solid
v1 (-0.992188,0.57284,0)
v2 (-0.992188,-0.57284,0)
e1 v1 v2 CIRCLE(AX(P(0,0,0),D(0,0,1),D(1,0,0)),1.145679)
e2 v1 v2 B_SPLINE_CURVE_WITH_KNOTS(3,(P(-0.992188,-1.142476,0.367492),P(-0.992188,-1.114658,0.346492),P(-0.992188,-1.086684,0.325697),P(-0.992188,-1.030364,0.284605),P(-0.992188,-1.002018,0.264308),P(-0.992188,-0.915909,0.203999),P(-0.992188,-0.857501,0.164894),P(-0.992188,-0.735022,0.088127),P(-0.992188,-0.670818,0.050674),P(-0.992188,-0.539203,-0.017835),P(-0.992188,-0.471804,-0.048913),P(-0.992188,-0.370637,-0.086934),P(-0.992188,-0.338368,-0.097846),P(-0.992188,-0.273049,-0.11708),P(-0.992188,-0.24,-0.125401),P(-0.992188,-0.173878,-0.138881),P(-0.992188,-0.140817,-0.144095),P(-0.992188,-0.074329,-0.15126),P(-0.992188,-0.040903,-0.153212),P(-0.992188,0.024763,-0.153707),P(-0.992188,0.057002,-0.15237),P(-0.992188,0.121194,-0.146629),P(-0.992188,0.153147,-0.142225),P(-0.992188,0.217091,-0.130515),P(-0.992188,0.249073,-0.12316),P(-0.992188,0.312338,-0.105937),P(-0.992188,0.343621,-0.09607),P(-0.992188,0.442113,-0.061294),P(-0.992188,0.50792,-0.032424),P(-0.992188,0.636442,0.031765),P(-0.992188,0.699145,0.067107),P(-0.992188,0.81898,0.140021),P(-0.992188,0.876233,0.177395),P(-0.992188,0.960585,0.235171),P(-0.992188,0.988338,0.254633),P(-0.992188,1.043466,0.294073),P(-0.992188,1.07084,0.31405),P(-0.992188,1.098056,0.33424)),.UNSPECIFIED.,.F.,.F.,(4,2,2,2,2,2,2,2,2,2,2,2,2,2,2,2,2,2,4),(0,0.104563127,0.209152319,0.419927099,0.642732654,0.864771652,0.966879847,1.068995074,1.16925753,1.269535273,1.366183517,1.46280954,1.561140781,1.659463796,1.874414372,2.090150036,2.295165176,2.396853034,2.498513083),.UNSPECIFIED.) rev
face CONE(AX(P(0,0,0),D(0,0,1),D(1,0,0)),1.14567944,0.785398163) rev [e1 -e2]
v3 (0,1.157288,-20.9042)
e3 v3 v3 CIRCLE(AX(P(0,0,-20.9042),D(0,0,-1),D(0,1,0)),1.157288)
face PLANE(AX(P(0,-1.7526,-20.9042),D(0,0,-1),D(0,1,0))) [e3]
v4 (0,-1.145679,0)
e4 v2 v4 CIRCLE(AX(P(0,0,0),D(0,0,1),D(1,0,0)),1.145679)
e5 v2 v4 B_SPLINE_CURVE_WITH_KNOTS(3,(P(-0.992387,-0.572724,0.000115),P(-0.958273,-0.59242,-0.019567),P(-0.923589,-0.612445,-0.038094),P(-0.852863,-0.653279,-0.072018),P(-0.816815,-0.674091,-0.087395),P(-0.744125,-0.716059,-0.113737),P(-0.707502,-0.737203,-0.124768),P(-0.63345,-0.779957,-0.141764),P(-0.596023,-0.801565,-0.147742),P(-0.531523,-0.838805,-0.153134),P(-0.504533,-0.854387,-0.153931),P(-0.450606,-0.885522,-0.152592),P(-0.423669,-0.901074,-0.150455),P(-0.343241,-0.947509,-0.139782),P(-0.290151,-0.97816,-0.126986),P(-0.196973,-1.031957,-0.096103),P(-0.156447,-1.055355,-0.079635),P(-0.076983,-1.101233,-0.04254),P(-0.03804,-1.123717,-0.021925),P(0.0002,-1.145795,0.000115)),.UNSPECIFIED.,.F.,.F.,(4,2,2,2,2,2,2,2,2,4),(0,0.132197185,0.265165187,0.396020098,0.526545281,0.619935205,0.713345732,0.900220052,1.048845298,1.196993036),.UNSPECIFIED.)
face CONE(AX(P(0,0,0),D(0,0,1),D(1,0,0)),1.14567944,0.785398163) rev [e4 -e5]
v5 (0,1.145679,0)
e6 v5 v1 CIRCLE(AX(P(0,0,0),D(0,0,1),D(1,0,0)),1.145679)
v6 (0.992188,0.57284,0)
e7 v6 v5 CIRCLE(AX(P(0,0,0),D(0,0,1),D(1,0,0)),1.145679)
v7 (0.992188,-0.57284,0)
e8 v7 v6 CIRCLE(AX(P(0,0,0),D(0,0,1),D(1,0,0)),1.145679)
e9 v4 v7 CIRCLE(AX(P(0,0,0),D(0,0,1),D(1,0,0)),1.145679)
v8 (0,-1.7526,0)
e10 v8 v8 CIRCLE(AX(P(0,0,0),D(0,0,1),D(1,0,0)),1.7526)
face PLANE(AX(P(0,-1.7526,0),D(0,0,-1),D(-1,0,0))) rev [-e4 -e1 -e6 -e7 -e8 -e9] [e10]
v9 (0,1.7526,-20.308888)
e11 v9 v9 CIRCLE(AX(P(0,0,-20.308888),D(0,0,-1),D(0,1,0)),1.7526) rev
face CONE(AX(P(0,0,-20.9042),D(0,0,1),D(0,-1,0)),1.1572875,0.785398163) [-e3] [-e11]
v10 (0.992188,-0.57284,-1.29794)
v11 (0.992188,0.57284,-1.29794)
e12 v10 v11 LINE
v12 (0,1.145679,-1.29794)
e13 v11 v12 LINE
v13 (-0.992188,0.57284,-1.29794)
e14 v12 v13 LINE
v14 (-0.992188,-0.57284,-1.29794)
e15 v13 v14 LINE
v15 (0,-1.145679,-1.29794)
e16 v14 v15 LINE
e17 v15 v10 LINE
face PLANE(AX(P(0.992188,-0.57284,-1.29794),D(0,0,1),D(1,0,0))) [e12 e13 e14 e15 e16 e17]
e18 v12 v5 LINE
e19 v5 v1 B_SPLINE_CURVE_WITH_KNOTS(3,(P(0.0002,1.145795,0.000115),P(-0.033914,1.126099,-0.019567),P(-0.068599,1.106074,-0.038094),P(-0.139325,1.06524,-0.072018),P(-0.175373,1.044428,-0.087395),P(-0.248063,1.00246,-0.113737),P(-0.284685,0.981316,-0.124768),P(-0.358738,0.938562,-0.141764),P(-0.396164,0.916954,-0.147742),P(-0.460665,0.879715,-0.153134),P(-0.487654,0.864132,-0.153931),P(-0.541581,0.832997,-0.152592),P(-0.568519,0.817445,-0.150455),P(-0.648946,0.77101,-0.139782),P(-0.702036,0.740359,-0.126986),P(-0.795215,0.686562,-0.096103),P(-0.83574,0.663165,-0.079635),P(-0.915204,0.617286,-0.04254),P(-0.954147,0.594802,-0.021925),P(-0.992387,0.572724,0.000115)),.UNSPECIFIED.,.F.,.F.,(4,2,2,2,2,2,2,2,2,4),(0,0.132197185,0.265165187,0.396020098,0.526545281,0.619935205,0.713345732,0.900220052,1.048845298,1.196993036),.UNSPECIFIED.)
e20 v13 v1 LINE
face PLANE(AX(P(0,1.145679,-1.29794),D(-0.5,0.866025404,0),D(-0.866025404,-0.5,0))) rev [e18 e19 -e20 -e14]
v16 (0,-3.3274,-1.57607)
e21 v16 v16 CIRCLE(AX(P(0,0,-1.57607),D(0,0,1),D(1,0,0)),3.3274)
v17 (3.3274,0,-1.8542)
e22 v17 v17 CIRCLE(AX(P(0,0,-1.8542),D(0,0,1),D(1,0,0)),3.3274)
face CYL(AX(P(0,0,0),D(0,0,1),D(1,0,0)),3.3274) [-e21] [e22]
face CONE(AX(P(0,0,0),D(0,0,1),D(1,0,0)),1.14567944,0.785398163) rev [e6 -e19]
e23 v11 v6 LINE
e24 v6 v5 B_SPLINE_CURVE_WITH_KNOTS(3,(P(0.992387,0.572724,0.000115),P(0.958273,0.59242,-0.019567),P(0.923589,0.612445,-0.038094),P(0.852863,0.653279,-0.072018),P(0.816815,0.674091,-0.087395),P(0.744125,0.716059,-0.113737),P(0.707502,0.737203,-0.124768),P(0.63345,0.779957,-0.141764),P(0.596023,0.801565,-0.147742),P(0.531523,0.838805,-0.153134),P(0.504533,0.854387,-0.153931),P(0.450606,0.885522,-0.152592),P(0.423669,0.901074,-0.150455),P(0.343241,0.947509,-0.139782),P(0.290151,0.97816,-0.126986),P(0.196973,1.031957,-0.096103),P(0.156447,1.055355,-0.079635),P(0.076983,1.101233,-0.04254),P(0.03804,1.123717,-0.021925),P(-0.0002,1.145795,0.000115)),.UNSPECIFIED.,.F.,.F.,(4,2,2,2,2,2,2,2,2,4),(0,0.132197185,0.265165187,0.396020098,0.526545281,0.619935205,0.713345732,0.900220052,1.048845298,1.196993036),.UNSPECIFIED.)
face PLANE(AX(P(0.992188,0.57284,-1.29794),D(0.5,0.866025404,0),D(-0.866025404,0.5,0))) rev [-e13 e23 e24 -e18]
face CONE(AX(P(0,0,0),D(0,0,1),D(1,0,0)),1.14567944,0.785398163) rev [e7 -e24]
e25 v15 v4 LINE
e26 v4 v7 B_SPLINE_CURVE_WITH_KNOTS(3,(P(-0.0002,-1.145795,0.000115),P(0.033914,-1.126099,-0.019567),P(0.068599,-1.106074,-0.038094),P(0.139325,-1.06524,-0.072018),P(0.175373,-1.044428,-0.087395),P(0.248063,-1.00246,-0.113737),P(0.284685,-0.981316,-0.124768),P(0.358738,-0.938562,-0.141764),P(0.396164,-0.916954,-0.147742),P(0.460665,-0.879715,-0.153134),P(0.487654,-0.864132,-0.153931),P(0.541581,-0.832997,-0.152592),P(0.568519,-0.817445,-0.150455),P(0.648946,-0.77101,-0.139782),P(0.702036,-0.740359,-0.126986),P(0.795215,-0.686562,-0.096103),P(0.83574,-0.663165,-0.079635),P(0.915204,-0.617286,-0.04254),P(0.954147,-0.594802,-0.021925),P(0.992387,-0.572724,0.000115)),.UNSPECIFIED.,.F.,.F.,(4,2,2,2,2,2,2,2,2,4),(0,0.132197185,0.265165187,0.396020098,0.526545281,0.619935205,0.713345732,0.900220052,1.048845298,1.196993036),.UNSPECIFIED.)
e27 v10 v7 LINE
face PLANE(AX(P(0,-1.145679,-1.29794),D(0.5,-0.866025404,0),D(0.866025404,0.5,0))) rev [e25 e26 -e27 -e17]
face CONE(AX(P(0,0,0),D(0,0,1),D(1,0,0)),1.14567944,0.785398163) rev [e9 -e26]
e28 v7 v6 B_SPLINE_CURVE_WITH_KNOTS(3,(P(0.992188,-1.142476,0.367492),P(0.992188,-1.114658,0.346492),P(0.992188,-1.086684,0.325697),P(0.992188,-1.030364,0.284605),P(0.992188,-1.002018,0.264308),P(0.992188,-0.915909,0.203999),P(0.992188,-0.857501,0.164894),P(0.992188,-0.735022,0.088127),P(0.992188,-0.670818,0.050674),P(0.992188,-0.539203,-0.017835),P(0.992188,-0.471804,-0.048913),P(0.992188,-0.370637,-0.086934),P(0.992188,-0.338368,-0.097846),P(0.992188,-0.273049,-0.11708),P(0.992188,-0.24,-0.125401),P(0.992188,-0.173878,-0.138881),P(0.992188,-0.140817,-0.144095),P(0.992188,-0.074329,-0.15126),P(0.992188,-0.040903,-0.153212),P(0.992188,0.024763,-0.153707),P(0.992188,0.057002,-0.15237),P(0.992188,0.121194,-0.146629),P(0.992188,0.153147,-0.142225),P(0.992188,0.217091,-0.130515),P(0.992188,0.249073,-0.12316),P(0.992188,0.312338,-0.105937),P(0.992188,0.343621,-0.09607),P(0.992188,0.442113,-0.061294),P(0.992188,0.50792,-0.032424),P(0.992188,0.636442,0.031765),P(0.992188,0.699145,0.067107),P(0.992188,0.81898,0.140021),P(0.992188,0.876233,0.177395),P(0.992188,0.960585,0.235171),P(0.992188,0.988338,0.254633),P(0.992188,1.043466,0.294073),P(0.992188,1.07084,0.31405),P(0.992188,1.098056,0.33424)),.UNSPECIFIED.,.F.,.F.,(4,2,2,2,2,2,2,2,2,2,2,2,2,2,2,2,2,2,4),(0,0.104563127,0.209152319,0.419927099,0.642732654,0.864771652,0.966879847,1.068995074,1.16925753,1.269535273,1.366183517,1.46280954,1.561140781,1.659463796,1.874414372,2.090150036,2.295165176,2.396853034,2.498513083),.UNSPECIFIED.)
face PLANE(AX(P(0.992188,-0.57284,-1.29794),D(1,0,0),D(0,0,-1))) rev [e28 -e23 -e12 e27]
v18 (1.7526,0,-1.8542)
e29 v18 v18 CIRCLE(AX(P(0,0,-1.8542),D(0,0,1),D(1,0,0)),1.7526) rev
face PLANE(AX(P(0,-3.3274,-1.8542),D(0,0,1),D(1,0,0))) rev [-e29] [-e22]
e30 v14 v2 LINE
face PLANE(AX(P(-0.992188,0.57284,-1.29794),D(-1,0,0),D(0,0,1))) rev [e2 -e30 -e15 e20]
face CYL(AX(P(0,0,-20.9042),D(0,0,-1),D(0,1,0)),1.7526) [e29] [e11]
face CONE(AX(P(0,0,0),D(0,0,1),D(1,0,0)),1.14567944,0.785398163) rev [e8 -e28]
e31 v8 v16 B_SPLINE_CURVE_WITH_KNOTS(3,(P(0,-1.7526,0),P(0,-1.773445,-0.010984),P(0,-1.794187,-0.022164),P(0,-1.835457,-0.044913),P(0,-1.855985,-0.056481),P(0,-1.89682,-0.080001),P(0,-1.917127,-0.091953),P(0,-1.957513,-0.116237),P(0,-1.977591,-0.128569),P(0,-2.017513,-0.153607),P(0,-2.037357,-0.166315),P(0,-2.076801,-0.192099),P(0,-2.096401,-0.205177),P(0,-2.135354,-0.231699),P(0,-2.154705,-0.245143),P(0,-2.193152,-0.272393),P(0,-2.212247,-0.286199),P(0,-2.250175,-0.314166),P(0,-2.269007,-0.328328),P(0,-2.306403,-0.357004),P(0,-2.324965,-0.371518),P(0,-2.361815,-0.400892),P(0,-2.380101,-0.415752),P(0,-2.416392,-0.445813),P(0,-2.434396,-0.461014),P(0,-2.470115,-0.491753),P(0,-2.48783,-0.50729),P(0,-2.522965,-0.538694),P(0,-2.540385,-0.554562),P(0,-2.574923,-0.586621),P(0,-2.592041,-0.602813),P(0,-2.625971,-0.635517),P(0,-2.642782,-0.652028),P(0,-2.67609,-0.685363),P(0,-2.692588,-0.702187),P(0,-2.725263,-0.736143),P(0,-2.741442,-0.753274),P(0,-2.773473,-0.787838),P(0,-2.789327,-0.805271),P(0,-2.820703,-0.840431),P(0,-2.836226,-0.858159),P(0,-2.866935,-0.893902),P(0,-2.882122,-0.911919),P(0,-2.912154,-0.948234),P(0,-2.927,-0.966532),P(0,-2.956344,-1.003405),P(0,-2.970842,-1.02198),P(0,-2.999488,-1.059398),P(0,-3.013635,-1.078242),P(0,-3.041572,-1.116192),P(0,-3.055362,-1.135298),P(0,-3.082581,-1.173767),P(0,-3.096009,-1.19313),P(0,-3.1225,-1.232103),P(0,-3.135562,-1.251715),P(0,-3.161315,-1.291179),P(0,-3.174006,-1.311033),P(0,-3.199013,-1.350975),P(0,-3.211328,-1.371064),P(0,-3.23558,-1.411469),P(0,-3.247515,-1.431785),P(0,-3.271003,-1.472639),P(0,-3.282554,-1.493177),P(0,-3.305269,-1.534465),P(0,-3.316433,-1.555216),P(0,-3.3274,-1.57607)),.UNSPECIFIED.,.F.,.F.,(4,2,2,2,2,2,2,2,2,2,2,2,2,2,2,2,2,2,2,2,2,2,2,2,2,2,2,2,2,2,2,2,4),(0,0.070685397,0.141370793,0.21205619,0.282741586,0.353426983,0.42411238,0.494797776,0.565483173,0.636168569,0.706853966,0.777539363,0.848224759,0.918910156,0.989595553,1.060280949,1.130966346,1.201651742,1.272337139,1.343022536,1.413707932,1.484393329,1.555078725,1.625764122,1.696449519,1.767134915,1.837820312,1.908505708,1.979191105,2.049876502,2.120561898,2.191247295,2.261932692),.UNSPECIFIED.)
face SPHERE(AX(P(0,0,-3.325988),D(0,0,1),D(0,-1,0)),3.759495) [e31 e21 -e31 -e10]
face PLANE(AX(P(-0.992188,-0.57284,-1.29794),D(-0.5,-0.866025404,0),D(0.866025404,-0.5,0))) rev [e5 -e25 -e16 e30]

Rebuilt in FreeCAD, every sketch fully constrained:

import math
import FreeCAD as App
import Part
import Sketcher
Q = App.Units.Quantity


def edges_at(feature, points):
    """Names of the edges that pass closest to the given points."""
    edges = feature.Shape.Edges
    near = lambda p: min(range(len(edges)), key=lambda i: edges[i].distToShape(Part.Vertex(*p))[0])
    return sorted({f"Edge{near(p) + 1}" for p in points})


def add_polygon(sketch, points):
    """Adds a closed chain of lines whose ends are joined by coincident constraints."""
    first, n = sketch.GeometryCount, len(points)
    for a, b in zip(points, points[1:] + points[:1]):
        sketch.addGeometry(Part.LineSegment(App.Vector(*a, 0), App.Vector(*b, 0)), False)
    for i in range(n):
        sketch.addConstraint(Sketcher.Constraint("Coincident", first + i, 2, first + (i + 1) % n, 1))

doc = App.newDocument("Part")
body = doc.addObject("PartDesign::Body", "Body")

# Sketch on YZ plane
sketch1 = body.newObject("Sketcher::SketchObject", "Sketch")
sketch1.AttachmentSupport = (doc.getObject("YZ_Plane"), [""])
sketch1.MapMode = "FlatFace"
add_polygon(sketch1, [(1.7526, -1.8542), (0, -1.8542), (0, -20.9042), (1.7526, -20.9042)])  # lines 0-3
sketch1.addConstraint(Sketcher.Constraint("Horizontal", 0))
sketch1.addConstraint(Sketcher.Constraint("Vertical", 1))
sketch1.addConstraint(Sketcher.Constraint("Horizontal", 2))
sketch1.addConstraint(Sketcher.Constraint("Vertical", 3))
sketch1.addConstraint(Sketcher.Constraint("PointOnObject", 0, 2, -2))
sketch1.addConstraint(Sketcher.Constraint("DistanceY", 1, 2, 1, 1, Q("0.75 in")))
sketch1.addConstraint(Sketcher.Constraint("DistanceX", 0, 2, 0, 1, Q("0.069 in")))
sketch1.addConstraint(Sketcher.Constraint("DistanceY", 0, 2, -1, 1, Q("0.073 in")))
revolution = body.newObject("PartDesign::Revolution", "Revolution")
revolution.Profile = sketch1
revolution.ReferenceAxis = (sketch1, ["V_Axis"])
revolution.Angle = 360
doc.recompute()

chamfer = body.newObject("PartDesign::Chamfer", "Chamfer")
chamfer.Base = (revolution, edges_at(revolution, [(0, -1.753, -20.904)]))
chamfer.Size = 0.595313

# Sketch on YZ plane
sketch2 = body.newObject("Sketcher::SketchObject", "Sketch001")
sketch2.AttachmentSupport = (doc.getObject("YZ_Plane"), [""])
sketch2.MapMode = "FlatFace"
sketch2.addGeometry(Part.LineSegment(App.Vector(3.3274, -1.8542, 0), App.Vector(3.3274, -1.57607, 0)), False)
sketch2.addGeometry(Part.ArcOfCircle(Part.Circle(App.Vector(0, -3.325988, 0), App.Vector(0, 0, 1), 3.759495), math.radians(27.740403), math.radians(62.21341)), False)
sketch2.addGeometry(Part.LineSegment(App.Vector(1.7526, 0, 0), App.Vector(0, 0, 0)), False)
sketch2.addGeometry(Part.LineSegment(App.Vector(0, 0, 0), App.Vector(0, -1.8542, 0)), False)
sketch2.addGeometry(Part.LineSegment(App.Vector(0, -1.8542, 0), App.Vector(3.3274, -1.8542, 0)), False)
sketch2.addConstraint(Sketcher.Constraint("Coincident", 0, 2, 1, 1))
sketch2.addConstraint(Sketcher.Constraint("Coincident", 1, 2, 2, 1))
sketch2.addConstraint(Sketcher.Constraint("Coincident", 2, 2, 3, 1))
sketch2.addConstraint(Sketcher.Constraint("Coincident", 3, 2, 4, 1))
sketch2.addConstraint(Sketcher.Constraint("Coincident", 4, 2, 0, 1))
sketch2.addConstraint(Sketcher.Constraint("Vertical", 0))
sketch2.addConstraint(Sketcher.Constraint("Horizontal", 2))
sketch2.addConstraint(Sketcher.Constraint("Vertical", 3))
sketch2.addConstraint(Sketcher.Constraint("Horizontal", 4))
sketch2.addConstraint(Sketcher.Constraint("Coincident", 2, 2, -1, 1))
sketch2.addConstraint(Sketcher.Constraint("PointOnObject", 1, 3, -2))
sketch2.addConstraint(Sketcher.Constraint("DistanceX", 2, 2, 2, 1, Q("0.069 in")))
sketch2.addConstraint(Sketcher.Constraint("DistanceX", 4, 1, 4, 2, Q("0.131 in")))
sketch2.addConstraint(Sketcher.Constraint("DistanceY", 3, 2, 3, 1, Q("0.073 in")))
sketch2.addConstraint(Sketcher.Constraint("Radius", 1, 3.759495))
revolution2 = body.newObject("PartDesign::Revolution", "Revolution001")
revolution2.Profile = sketch2
revolution2.ReferenceAxis = (sketch2, ["V_Axis"])
revolution2.Angle = 360

# Sketch on XY plane
sketch3 = body.newObject("Sketcher::SketchObject", "Sketch002")
sketch3.AttachmentSupport = (doc.getObject("XY_Plane"), [""])
sketch3.MapMode = "FlatFace"
add_polygon(sketch3, [(0.992188, -0.57284), (0.992188, 0.57284), (0, 1.145679), (-0.992188, 0.57284), (-0.992188, -0.57284), (0, -1.145679)])  # lines 0-5
sketch3.addConstraint(Sketcher.Constraint("Vertical", 0))
sketch3.addConstraint(Sketcher.Constraint("Vertical", 3))
sketch3.addConstraint(Sketcher.Constraint("Symmetric", 0, 2, 3, 2, -1, 1))
sketch3.addConstraint(Sketcher.Constraint("Symmetric", 1, 2, 4, 2, -1, 1))
sketch3.addConstraint(Sketcher.Constraint("PointOnObject", 1, 2, -2))
sketch3.addConstraint(Sketcher.Constraint("Parallel", 2, 5))
sketch3.addConstraint(Sketcher.Constraint("Horizontal", 0, 2, 2, 2))
sketch3.addConstraint(Sketcher.Constraint("Angle", 1, Q("150 deg")))
sketch3.addConstraint(Sketcher.Constraint("DistanceX", 2, 2, 0, 2, Q("0.078125 in")))
sketch3.addConstraint(Sketcher.Constraint("DistanceY", 0, 1, 0, 2, 1.145679))
pocket1 = body.newObject("PartDesign::Pocket", "Pocket")
pocket1.Profile = sketch3
pocket1.Length = Q("0.0511 in")

# Sketch on YZ plane
sketch4 = body.newObject("Sketcher::SketchObject", "Sketch003")
sketch4.AttachmentSupport = (doc.getObject("YZ_Plane"), [""])
sketch4.MapMode = "FlatFace"
add_polygon(sketch4, [(0, 0), (-1.145679, 0), (0, -1.145679)])  # lines 0-2
sketch4.addConstraint(Sketcher.Constraint("Horizontal", 0))
sketch4.addConstraint(Sketcher.Constraint("Vertical", 2))
sketch4.addConstraint(Sketcher.Constraint("Coincident", 2, 2, -1, 1))
sketch4.addConstraint(Sketcher.Constraint("Equal", 0, 2))
sketch4.addConstraint(Sketcher.Constraint("DistanceX", 0, 2, 0, 1, 1.145679))
groove = body.newObject("PartDesign::Groove", "Groove")
groove.Profile = sketch4
groove.ReferenceAxis = (sketch4, ["V_Axis"])
groove.Angle = 360

doc.recompute()
